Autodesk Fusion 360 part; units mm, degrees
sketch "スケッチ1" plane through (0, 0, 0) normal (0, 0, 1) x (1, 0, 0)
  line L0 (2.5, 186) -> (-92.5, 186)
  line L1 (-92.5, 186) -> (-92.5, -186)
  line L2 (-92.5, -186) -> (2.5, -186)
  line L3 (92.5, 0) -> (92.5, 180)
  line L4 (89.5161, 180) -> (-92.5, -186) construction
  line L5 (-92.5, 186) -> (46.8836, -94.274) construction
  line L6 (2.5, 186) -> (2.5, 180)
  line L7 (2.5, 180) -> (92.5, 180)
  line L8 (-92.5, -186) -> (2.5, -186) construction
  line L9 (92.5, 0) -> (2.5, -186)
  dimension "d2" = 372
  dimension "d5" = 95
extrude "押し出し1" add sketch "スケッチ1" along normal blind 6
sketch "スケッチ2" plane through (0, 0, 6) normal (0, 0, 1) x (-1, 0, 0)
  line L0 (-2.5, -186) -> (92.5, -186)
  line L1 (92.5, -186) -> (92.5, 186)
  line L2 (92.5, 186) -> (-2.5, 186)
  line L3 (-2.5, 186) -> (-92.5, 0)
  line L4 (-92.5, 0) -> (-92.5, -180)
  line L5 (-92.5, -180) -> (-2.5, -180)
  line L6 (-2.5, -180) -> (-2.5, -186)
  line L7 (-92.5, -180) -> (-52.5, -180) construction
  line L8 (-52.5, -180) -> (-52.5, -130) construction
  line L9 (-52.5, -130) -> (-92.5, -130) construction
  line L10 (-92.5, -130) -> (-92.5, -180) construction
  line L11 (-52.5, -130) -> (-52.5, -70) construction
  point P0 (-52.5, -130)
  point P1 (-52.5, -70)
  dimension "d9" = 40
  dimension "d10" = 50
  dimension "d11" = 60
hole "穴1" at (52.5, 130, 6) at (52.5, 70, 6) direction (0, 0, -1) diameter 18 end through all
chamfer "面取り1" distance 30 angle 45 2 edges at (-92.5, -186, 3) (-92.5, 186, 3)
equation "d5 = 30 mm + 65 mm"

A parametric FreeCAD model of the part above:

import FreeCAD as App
import Part
import Sketcher


def edges_at(feature, points):
    """Names of the edges that pass closest to the given points."""
    edges = feature.Shape.Edges
    near = lambda p: min(range(len(edges)), key=lambda i: edges[i].distToShape(Part.Vertex(*p))[0])
    return sorted({f"Edge{near(p) + 1}" for p in points})


def add_polygon(sketch, points):
    """Adds a closed chain of lines whose ends are joined by coincident constraints."""
    first, n = sketch.GeometryCount, len(points)
    for a, b in zip(points, points[1:] + points[:1]):
        sketch.addGeometry(Part.LineSegment(App.Vector(*a, 0), App.Vector(*b, 0)), False)
    for i in range(n):
        sketch.addConstraint(Sketcher.Constraint("Coincident", first + i, 2, first + (i + 1) % n, 1))

doc = App.newDocument("Part")
body = doc.addObject("PartDesign::Body", "Body")

sketch1 = body.newObject("Sketcher::SketchObject", "Sketch")
sketch1.AttachmentSupport = (doc.getObject("XY_Plane"), [""])
sketch1.MapMode = "FlatFace"
add_polygon(sketch1, [(2.5, 180), (2.5, 186), (-92.5, 186), (-92.5, -186), (2.5, -186), (92.5, 0), (92.5, 180)])
sketch1.addConstraint([
    Sketcher.Constraint("Vertical", 0),
    Sketcher.Constraint("Horizontal", 1),
    Sketcher.Constraint("Vertical", 2),
    Sketcher.Constraint("Horizontal", 3),
    Sketcher.Constraint("Vertical", 5),
    Sketcher.Constraint("Horizontal", 6),
    Sketcher.Constraint("Symmetric", 0, 2, 3, 2, -1),
    Sketcher.Constraint("PointOnObject", 4, 2, -1),
    Sketcher.Constraint("DistanceX", 1, 2, 1, 1, 95.0),
    Sketcher.Constraint("DistanceY", 2, 2, 2, 1, 372.0),
    Sketcher.Constraint("DistanceX", 6, 2, 6, 1, 90.0),
    Sketcher.Constraint("DistanceY", 0, 1, 0, 2, 6.0),
    Sketcher.Constraint("DistanceX", -1, 1, 0, 2, 2.5),
])
pad1 = body.newObject("PartDesign::Pad", "Pad")
pad1.Profile = sketch1
pad1.Length = 6

sketch2 = body.newObject("Sketcher::SketchObject", "Sketch001")
sketch2.AttachmentSupport = (doc.getObject("XY_Plane"), [""])
sketch2.MapMode = "FlatFace"
sketch2.AttachmentOffset = App.Placement(App.Vector(0, 0, 6), App.Rotation())
sketch2.addGeometry([
    Part.Circle(App.Vector(52.5, 130, 0), App.Vector(0, 0, 1), 9),
    Part.Circle(App.Vector(52.5, 70, 0), App.Vector(0, 0, 1), 9),
], False)
sketch2.addConstraint([
    Sketcher.Constraint("Equal", 0, 1),
    Sketcher.Constraint("Vertical", 0, 3, 1, 3),
    Sketcher.Constraint("Diameter", 0, 18.0),
    Sketcher.Constraint("DistanceY", -1, 1, 0, 3, 130.0),
    Sketcher.Constraint("DistanceY", -1, 1, 1, 3, 70.0),
    Sketcher.Constraint("DistanceX", -1, 1, 0, 3, 52.5),
])
doc.recompute()
hole = body.newObject("PartDesign::Hole", "Hole")
hole.Profile = sketch2
hole.ThreadType = "None"
hole.Diameter = 18
hole.DepthType = "ThroughAll"
doc.recompute()

chamfer = body.newObject("PartDesign::Chamfer", "Chamfer")
chamfer.Base = (hole, edges_at(hole, [(-92.5, -186, 3), (-92.5, 186, 3)]))
chamfer.Size = 30

doc.recompute()
